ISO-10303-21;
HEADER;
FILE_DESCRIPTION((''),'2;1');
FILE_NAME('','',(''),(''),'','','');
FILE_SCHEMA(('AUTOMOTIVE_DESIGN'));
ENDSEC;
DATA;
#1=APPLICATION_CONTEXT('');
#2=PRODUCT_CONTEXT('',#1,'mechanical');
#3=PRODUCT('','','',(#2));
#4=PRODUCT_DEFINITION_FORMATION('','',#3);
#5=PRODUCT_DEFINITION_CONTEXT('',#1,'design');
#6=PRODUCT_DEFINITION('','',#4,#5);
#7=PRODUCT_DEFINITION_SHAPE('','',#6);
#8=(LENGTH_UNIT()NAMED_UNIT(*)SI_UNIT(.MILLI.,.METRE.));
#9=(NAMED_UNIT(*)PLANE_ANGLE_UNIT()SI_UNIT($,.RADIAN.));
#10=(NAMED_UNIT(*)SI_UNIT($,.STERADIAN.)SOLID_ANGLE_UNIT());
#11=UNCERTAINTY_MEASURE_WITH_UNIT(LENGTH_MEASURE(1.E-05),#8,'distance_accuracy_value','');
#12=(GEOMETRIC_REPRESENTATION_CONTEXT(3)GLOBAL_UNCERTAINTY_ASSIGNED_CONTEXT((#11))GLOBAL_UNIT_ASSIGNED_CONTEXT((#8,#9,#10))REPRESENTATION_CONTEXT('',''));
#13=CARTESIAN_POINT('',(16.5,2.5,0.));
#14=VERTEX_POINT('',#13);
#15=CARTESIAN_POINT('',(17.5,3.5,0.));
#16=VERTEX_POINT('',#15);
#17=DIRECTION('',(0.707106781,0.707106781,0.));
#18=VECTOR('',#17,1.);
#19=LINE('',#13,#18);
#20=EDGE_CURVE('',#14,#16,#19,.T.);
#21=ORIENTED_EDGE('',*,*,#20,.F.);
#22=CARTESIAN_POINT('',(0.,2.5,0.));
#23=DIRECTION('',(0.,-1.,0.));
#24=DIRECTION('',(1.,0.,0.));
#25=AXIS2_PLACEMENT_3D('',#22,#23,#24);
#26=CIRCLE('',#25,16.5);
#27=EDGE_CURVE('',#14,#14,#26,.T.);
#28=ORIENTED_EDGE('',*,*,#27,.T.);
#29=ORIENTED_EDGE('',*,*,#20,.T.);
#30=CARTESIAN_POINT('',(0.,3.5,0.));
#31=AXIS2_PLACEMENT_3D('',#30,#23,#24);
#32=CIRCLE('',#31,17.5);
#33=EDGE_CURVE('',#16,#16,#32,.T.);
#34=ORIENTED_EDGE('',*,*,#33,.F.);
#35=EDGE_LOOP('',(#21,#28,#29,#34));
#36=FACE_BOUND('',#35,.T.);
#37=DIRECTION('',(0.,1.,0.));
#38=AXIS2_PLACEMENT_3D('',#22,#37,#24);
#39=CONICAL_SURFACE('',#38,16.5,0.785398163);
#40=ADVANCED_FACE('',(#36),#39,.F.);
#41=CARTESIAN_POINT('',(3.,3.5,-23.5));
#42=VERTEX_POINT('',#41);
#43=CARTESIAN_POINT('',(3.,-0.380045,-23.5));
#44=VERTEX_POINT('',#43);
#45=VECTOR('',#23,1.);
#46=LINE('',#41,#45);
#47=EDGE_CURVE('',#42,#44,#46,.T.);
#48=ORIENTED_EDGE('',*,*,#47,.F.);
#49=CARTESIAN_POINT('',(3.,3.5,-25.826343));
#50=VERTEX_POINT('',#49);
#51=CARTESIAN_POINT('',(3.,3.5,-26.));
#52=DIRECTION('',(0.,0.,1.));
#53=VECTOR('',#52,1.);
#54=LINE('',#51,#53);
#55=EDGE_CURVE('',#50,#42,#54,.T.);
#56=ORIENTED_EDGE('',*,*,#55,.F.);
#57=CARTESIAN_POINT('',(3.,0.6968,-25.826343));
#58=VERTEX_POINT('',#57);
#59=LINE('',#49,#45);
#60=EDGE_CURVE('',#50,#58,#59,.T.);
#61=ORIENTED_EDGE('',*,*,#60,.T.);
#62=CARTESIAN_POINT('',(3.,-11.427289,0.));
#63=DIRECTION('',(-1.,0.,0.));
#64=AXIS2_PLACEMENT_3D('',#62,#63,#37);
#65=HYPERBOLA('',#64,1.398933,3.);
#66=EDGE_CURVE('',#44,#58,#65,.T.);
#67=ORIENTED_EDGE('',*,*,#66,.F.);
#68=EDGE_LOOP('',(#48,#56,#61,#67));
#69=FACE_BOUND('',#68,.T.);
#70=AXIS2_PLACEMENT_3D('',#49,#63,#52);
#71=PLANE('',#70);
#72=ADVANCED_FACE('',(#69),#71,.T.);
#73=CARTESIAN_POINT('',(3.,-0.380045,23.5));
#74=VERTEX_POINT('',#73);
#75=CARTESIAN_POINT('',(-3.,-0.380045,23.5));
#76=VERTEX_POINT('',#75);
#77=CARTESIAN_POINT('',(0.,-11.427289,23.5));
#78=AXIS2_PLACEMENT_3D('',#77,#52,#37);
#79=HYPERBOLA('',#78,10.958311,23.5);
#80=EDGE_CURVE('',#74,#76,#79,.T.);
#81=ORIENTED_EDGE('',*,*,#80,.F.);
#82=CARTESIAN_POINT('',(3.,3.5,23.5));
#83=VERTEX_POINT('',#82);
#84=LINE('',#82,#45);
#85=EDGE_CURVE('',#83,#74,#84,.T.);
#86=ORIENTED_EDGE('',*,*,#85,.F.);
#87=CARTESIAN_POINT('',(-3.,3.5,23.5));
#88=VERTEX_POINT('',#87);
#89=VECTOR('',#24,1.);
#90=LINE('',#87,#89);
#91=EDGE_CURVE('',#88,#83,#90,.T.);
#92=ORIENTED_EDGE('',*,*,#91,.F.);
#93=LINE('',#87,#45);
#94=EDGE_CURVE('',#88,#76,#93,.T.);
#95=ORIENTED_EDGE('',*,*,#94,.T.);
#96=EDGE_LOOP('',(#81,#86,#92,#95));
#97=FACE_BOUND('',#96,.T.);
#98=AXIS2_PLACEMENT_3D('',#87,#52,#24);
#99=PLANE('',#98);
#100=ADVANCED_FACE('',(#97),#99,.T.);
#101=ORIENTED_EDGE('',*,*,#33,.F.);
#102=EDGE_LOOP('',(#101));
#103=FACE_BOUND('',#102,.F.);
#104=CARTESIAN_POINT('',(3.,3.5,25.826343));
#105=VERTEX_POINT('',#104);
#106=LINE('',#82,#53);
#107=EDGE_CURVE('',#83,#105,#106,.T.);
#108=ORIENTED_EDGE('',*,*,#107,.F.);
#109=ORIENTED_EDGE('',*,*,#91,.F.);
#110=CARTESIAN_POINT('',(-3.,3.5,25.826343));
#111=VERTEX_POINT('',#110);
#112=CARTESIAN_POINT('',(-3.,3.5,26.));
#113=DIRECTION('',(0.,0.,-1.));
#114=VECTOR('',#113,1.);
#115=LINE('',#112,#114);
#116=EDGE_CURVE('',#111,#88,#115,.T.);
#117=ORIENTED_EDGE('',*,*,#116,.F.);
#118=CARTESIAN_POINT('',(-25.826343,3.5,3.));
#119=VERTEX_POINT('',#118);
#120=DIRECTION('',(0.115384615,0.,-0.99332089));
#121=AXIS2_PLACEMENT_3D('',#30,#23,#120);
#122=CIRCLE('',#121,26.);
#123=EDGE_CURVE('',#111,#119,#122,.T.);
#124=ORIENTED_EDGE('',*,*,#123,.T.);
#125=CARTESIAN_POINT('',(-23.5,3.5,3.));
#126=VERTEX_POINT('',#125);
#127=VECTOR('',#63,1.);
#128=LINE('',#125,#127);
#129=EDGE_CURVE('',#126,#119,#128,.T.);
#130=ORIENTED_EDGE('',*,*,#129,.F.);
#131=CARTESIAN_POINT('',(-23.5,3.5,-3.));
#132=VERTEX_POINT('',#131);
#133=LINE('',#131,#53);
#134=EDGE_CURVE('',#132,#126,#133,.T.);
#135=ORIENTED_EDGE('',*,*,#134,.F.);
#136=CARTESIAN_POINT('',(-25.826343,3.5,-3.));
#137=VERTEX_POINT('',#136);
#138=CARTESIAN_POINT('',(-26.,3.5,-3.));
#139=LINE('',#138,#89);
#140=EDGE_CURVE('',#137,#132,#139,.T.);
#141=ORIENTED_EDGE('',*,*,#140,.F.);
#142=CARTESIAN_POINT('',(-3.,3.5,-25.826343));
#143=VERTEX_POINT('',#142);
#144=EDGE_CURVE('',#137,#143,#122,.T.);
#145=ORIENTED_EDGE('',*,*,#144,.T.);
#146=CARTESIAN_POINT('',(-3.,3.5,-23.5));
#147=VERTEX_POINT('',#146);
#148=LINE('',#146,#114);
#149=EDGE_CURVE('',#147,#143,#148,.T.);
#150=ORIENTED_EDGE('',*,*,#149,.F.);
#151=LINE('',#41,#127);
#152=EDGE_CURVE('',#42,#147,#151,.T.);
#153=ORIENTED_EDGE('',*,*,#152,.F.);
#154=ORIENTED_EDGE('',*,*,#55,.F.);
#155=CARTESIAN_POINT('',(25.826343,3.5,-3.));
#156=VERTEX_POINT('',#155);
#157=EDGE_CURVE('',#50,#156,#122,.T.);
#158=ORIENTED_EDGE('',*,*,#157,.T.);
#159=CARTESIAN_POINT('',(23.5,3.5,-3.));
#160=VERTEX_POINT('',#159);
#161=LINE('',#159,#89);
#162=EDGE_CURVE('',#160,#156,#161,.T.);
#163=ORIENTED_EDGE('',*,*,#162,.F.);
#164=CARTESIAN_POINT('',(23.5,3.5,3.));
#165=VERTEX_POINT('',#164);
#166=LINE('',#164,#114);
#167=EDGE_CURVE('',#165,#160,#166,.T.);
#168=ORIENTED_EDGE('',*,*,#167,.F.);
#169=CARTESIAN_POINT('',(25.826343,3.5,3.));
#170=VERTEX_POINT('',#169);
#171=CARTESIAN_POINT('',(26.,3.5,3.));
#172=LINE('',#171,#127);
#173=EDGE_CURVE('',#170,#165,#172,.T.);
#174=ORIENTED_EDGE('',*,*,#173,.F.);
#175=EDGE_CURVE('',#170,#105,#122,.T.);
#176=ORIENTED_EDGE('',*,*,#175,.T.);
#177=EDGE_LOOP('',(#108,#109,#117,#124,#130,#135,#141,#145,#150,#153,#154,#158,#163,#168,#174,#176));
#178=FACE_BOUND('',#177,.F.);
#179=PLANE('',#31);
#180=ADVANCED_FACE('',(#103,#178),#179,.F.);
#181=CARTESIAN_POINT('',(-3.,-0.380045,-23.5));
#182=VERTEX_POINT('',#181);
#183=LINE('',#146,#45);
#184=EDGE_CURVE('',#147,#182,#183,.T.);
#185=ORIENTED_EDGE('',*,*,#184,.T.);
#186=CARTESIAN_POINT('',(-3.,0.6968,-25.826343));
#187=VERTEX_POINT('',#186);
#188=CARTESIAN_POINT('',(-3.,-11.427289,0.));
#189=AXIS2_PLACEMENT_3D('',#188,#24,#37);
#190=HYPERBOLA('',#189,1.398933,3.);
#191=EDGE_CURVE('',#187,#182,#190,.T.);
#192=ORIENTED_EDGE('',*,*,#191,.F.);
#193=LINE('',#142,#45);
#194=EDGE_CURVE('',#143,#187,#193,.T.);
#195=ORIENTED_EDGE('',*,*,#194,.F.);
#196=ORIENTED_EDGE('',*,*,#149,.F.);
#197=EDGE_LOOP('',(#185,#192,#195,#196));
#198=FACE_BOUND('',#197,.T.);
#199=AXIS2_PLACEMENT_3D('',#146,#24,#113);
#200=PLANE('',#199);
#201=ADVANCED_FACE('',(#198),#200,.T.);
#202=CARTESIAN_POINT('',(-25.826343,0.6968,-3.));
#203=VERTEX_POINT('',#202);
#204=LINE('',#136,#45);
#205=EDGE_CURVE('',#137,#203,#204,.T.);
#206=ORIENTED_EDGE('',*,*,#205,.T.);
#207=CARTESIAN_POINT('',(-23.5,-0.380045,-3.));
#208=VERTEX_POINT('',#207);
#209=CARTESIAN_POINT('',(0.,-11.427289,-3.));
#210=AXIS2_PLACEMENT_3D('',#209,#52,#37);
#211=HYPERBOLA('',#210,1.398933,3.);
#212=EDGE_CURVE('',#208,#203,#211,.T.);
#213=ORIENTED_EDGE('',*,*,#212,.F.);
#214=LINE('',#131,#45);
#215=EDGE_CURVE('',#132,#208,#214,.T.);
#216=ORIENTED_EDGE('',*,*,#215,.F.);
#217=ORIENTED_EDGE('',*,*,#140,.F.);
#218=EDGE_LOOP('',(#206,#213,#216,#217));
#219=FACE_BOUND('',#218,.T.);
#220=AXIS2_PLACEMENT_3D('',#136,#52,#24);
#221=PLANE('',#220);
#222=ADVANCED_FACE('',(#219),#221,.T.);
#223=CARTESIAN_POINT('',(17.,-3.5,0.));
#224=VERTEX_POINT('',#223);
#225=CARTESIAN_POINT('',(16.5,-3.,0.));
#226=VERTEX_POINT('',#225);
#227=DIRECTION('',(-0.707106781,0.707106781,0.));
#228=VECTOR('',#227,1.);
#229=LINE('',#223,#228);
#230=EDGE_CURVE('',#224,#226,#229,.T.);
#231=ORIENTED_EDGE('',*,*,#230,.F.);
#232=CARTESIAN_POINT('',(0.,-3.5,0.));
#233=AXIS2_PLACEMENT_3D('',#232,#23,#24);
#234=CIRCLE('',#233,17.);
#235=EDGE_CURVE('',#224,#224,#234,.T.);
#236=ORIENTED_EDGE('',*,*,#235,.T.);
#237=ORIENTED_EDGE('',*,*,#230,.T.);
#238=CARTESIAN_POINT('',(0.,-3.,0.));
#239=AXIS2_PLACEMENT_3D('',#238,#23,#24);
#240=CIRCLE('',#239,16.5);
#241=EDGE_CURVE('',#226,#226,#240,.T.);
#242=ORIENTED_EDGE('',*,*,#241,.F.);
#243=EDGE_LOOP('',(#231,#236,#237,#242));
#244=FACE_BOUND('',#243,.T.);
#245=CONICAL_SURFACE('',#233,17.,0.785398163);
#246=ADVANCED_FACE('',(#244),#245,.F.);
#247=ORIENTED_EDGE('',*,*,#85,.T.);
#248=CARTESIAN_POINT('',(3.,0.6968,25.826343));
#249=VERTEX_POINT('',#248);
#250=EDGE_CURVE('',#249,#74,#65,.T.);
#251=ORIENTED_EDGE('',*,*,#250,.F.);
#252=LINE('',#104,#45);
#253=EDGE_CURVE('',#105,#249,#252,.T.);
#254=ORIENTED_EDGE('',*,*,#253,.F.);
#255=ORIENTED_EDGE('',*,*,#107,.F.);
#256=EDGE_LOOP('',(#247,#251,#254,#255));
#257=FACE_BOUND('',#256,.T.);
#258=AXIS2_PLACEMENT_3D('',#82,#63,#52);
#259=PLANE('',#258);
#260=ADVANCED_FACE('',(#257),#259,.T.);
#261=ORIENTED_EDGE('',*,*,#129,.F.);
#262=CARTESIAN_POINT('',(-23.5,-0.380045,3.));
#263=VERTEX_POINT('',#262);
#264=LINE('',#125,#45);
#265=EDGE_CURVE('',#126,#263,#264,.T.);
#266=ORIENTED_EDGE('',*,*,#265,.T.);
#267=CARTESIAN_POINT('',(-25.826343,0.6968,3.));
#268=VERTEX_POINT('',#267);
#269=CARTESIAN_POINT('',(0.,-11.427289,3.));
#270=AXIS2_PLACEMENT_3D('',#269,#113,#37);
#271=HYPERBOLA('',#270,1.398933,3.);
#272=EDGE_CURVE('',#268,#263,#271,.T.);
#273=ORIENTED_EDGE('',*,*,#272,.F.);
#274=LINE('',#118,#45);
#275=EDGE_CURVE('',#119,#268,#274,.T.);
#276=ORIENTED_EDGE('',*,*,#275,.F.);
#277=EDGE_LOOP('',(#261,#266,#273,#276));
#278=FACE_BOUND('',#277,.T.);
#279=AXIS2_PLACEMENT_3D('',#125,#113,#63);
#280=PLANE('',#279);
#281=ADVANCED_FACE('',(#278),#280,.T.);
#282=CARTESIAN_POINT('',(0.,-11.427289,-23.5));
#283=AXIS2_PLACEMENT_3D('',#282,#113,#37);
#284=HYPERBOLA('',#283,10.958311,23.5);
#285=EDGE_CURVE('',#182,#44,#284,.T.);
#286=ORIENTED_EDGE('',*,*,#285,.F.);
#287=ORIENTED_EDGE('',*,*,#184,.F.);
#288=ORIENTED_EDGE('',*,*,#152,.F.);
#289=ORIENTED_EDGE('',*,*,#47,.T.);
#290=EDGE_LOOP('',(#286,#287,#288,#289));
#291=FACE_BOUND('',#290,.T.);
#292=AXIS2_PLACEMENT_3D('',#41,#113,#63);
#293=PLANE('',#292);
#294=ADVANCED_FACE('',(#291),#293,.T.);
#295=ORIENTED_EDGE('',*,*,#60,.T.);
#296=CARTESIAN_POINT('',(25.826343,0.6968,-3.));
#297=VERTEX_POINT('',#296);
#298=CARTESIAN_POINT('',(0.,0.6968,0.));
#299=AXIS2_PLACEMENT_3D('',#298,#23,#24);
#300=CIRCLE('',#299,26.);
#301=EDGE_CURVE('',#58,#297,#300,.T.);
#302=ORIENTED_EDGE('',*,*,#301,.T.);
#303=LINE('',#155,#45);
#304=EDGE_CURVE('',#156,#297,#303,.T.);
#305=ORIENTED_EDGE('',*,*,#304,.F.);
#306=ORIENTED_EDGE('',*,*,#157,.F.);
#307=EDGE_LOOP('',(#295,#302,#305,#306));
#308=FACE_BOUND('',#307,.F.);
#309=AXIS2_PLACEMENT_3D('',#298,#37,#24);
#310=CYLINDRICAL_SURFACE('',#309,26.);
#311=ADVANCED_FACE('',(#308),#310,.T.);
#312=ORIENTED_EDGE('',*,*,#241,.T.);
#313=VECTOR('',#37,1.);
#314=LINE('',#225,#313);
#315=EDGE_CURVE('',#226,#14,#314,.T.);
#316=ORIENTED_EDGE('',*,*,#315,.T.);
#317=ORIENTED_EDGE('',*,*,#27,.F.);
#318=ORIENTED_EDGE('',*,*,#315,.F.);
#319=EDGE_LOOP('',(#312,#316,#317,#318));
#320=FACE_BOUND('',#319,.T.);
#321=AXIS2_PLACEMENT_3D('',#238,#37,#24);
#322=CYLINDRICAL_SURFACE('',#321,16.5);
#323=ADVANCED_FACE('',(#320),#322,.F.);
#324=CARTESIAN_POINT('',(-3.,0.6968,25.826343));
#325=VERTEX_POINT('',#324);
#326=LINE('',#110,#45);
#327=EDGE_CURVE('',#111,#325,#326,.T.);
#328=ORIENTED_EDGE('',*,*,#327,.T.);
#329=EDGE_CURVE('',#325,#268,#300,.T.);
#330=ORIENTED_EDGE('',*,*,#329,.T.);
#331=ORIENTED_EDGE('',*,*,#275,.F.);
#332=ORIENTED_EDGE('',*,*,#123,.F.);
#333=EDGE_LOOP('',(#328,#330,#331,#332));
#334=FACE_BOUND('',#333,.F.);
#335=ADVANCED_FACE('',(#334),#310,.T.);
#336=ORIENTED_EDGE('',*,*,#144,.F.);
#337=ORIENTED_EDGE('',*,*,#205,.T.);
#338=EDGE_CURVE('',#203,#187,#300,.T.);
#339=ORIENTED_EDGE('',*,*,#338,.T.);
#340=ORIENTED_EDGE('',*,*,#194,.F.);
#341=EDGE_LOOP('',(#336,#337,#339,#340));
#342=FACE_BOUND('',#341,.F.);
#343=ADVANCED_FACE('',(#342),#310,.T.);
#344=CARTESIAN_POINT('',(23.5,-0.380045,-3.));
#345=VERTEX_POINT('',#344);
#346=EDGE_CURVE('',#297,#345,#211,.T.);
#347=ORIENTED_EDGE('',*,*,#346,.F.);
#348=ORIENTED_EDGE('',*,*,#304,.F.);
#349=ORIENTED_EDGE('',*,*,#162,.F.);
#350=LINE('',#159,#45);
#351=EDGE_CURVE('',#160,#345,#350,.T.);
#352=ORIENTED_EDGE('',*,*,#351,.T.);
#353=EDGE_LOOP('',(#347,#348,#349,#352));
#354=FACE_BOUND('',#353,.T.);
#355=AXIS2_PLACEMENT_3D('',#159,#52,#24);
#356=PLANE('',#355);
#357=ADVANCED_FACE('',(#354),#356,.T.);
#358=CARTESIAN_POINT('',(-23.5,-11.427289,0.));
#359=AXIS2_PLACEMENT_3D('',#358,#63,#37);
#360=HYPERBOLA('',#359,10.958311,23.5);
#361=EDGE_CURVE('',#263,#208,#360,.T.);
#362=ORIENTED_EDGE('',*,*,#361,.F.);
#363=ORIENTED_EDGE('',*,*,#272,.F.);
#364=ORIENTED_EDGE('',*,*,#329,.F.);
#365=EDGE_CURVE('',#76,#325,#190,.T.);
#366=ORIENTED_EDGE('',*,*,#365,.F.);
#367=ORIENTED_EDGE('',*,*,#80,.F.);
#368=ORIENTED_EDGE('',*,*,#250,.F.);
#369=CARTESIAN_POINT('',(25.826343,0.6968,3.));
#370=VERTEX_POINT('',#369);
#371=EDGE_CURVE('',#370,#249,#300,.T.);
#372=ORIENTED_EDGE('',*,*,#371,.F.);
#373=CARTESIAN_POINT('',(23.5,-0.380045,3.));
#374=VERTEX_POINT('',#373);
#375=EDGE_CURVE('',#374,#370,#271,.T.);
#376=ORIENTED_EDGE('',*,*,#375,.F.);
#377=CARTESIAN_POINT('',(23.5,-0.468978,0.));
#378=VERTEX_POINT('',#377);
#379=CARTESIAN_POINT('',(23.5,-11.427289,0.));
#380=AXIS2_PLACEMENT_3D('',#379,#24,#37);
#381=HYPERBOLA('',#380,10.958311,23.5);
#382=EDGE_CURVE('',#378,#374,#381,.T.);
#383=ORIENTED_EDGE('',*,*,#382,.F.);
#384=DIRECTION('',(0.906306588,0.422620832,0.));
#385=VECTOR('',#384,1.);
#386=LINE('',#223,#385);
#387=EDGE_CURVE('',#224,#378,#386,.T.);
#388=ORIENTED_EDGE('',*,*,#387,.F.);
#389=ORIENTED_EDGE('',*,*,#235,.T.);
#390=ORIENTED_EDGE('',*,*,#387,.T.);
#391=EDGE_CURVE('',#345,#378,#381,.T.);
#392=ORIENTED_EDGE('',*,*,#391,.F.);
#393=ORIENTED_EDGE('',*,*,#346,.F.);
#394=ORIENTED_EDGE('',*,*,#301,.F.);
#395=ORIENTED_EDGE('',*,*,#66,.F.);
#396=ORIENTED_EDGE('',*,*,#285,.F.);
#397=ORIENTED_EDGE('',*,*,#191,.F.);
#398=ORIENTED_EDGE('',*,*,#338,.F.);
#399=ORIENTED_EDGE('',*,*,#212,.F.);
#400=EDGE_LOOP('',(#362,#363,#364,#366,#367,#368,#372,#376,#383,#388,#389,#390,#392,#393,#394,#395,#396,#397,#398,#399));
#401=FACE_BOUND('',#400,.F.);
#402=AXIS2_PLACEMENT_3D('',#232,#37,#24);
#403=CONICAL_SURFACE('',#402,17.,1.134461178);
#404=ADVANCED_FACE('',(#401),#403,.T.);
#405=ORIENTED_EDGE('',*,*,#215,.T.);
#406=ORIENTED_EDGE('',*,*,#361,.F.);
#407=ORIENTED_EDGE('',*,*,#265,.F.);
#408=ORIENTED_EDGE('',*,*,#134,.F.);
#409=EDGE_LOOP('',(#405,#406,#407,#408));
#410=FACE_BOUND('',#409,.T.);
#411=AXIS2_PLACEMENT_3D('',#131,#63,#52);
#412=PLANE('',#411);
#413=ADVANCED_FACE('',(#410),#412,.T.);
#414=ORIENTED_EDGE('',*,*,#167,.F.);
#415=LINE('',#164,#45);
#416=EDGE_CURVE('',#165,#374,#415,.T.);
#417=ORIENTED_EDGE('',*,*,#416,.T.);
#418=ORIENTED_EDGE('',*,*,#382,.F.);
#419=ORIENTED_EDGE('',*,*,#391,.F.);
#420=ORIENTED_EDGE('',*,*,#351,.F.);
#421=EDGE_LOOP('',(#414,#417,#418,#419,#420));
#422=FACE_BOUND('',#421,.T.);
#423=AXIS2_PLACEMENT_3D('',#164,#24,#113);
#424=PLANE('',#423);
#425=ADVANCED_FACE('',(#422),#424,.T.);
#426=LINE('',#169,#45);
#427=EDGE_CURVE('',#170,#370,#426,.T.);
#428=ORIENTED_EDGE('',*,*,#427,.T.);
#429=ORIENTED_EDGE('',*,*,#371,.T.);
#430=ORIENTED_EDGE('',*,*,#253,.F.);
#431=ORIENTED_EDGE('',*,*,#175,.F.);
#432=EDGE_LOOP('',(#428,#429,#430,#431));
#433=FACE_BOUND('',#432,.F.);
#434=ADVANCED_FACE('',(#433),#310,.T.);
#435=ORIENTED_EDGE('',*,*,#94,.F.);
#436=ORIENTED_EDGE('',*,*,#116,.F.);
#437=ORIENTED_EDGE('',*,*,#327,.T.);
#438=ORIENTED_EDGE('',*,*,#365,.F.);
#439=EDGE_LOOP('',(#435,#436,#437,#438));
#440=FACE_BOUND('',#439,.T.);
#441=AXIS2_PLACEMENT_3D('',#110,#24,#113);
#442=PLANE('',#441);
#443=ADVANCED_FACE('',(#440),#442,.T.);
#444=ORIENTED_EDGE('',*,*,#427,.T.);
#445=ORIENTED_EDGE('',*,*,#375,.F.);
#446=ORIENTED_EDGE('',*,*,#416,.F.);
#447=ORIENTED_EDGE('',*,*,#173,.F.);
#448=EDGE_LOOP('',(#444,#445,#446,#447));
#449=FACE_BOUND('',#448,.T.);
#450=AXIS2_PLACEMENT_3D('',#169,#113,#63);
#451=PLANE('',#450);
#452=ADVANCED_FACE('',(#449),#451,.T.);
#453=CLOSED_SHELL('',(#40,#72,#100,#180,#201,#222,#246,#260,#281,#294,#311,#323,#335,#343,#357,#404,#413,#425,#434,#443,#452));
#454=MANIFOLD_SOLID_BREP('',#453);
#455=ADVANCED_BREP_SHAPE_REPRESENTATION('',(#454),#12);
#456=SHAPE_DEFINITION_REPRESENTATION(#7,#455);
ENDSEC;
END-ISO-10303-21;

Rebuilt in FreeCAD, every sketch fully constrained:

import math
import FreeCAD as App
import Part
import Sketcher

V = App.Vector
Q = App.Units.Quantity


def add_polygon(sketch, points):
    """Adds a closed chain of lines whose ends are joined by coincident constraints."""
    first, n = sketch.GeometryCount, len(points)
    for a, b in zip(points, points[1:] + points[:1]):
        sketch.addGeometry(Part.LineSegment(App.Vector(*a, 0), App.Vector(*b, 0)), False)
    for i in range(n):
        sketch.addConstraint(Sketcher.Constraint("Coincident", first + i, 2, first + (i + 1) % n, 1))

doc = App.newDocument("Part")
body = doc.addObject("PartDesign::Body", "Body")

# Sketch on XY plane
sketch1 = body.newObject("Sketcher::SketchObject", "Sketch")
sketch1.AttachmentSupport = (doc.getObject("XY_Plane"), [""])
sketch1.MapMode = "FlatFace"
add_polygon(sketch1, [(16.5, -3), (17, -3.5), (26, 0.6968), (26, 3.5), (17.5, 3.5), (16.5, 2.5)])  # lines 0-5
sketch1.addConstraint(Sketcher.Constraint("Vertical", 2))
sketch1.addConstraint(Sketcher.Constraint("Horizontal", 3))
sketch1.addConstraint(Sketcher.Constraint("Vertical", 5))
sketch1.addConstraint(Sketcher.Constraint("Perpendicular", 0, 4))
sketch1.addConstraint(Sketcher.Constraint("Angle", 0, Q("-45 deg")))
sketch1.addConstraint(Sketcher.Constraint("Angle", 1, Q("25.0002 deg")))
sketch1.addConstraint(Sketcher.Constraint("DistanceY", 0, 2, 2, 2, 7.0))
sketch1.addConstraint(Sketcher.Constraint("DistanceX", 4, 2, 3, 2, 1.0))
sketch1.addConstraint(Sketcher.Constraint("DistanceX", 3, 2, 3, 1, 8.5))
sketch1.addConstraint(Sketcher.Constraint("DistanceY", 5, 2, 5, 1, 5.5))
sketch1.addConstraint(Sketcher.Constraint("DistanceX", -1, 1, 0, 2, 17.0))
sketch1.addConstraint(Sketcher.Constraint("DistanceY", 5, 2, -1, 1, 3.0))
revolution = body.newObject("PartDesign::Revolution", "Revolution")
revolution.Profile = sketch1
revolution.ReferenceAxis = (sketch1, ["V_Axis"])
revolution.Angle = 360

# Sketch on XZ plane
sketch2 = body.newObject("Sketcher::SketchObject", "Sketch001")
sketch2.AttachmentSupport = (doc.getObject("XZ_Plane"), [""])
sketch2.MapMode = "FlatFace"
sketch2.AttachmentOffset = App.Placement(V(0, 0, -3.5), App.Rotation())
sketch2.addGeometry(Part.ArcOfCircle(Part.Circle(V(0, 0, 0), V(0, 0, 1), 26), math.radians(-96.62581), math.radians(-83.37419)), False)
sketch2.addGeometry(Part.LineSegment(V(-3, -25.826343, 0), V(-3, -23.5, 0)), False)
sketch2.addGeometry(Part.LineSegment(V(-3, -23.5, 0), V(3, -23.5, 0)), False)
sketch2.addGeometry(Part.LineSegment(V(3, -23.5, 0), V(3, -25.826343, 0)), False)
sketch2.addConstraint(Sketcher.Constraint("Coincident", 0, 1, 1, 1))
sketch2.addConstraint(Sketcher.Constraint("Coincident", 1, 2, 2, 1))
sketch2.addConstraint(Sketcher.Constraint("Coincident", 2, 2, 3, 1))
sketch2.addConstraint(Sketcher.Constraint("Coincident", 3, 2, 0, 2))
sketch2.addConstraint(Sketcher.Constraint("Vertical", 1))
sketch2.addConstraint(Sketcher.Constraint("Horizontal", 2))
sketch2.addConstraint(Sketcher.Constraint("Vertical", 3))
sketch2.addConstraint(Sketcher.Constraint("Coincident", 0, 3, -1, 1))
sketch2.addConstraint(Sketcher.Constraint("Horizontal", 0, 1, 3, 2))
sketch2.addConstraint(Sketcher.Constraint("DistanceX", 2, 1, 2, 2, 6.0))
sketch2.addConstraint(Sketcher.Constraint("Radius", 0, 26.0))
sketch2.addConstraint(Sketcher.Constraint("DistanceY", 1, 2, -1, 1, 23.5))
pocket1 = body.newObject("PartDesign::Pocket", "Pocket")
pocket1.Profile = sketch2
pocket1.Type = "ThroughAll"
pocket1.Reversed = True
doc.recompute()

polarpattern = body.newObject("PartDesign::PolarPattern", "PolarPattern")
polarpattern.Originals = [pocket1]
polarpattern.Axis = (doc.getObject("Y_Axis"), [""])
polarpattern.Angle = 360
polarpattern.Occurrences = 4
body.Tip = polarpattern

doc.recompute()
